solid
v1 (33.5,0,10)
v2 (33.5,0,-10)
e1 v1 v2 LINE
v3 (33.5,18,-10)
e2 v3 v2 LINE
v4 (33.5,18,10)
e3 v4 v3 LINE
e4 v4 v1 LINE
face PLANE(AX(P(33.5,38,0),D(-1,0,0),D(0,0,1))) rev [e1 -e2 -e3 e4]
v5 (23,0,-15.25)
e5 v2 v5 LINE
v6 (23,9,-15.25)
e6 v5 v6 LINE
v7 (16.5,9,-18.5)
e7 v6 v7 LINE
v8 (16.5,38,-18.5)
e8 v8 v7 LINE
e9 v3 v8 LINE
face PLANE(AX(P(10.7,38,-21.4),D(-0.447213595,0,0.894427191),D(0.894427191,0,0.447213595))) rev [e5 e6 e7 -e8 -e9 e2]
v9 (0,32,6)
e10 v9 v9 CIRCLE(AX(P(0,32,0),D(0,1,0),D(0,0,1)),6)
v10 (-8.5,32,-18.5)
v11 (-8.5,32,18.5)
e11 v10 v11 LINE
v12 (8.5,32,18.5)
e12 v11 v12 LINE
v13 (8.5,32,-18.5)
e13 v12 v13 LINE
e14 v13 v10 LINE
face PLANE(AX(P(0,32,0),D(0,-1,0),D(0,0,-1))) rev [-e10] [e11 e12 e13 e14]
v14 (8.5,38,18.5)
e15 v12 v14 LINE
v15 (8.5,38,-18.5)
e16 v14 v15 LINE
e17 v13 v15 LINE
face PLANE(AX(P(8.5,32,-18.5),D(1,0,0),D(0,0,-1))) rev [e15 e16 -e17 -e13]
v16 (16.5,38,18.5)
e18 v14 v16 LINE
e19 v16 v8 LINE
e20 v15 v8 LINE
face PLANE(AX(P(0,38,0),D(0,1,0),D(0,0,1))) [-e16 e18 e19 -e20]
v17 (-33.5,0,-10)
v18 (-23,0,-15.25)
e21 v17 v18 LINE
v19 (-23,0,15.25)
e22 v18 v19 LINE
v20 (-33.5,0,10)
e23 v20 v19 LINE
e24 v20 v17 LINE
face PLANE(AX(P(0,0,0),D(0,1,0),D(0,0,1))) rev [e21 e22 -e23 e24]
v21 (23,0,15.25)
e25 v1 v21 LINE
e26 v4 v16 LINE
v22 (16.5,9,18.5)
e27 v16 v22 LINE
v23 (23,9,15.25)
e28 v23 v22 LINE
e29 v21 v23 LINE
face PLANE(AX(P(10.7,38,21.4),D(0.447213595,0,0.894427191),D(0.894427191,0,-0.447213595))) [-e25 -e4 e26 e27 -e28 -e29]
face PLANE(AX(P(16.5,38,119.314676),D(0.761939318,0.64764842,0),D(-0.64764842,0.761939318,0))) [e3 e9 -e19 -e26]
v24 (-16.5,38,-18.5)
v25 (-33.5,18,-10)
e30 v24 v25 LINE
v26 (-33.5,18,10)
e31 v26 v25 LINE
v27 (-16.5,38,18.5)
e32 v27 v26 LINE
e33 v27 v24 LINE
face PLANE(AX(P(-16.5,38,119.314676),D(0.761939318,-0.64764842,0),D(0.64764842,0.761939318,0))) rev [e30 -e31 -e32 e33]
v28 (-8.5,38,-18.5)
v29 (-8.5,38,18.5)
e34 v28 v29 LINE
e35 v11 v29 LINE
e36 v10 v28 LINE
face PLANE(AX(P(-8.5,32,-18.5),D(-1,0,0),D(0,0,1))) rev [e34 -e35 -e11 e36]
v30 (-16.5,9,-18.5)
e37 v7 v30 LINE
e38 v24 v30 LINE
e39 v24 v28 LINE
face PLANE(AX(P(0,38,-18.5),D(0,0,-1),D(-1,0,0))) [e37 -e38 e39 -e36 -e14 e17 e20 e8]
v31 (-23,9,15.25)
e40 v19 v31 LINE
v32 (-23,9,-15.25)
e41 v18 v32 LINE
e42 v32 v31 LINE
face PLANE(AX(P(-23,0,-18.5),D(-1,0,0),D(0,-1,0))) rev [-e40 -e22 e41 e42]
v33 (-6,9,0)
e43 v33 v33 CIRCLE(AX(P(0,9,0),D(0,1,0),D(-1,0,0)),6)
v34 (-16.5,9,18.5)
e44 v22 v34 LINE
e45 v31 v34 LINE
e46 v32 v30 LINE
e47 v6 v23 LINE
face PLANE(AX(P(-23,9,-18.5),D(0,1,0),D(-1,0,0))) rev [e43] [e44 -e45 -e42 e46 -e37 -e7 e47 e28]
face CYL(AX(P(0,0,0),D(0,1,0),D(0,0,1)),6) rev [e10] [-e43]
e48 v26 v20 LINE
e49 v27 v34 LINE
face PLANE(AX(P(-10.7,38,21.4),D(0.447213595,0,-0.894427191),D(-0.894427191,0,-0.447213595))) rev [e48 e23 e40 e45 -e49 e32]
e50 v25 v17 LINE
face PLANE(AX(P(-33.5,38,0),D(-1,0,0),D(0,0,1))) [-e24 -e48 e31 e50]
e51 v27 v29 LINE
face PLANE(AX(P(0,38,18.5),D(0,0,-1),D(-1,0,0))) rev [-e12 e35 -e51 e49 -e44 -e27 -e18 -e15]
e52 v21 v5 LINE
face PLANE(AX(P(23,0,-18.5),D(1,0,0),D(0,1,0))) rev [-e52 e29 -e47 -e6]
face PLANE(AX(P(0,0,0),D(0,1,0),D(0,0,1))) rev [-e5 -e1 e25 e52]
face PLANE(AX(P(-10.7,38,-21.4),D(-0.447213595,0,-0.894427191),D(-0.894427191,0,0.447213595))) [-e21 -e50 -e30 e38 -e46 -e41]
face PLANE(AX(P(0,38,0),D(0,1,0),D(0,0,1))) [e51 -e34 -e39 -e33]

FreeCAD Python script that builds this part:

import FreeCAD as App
import Part
import Sketcher
Q = App.Units.Quantity

doc = App.newDocument("Part")
params = doc.addObject("Spreadsheet::Sheet", "Params")
for row, (alias, value) in enumerate([
    ("sketch1_width", "33 mm"),
    ("sketch1_height", "20 mm"),
    ("pad1_length", "38 mm"),
    ("pocket1_length", "109.861022 mm"),
    ("sketch3_width", "46 mm"),
    ("sketch3_height", "9 mm"),
    ("sketch4_width", "17 mm"),
    ("sketch4_height", "37 mm"),
    ("pocket3_length", "6 mm"),
    ("sketch5_diameter", "12 mm"),
], start=1):
    params.set(f"A{row}", alias)
    params.set(f"B{row}", "=" + value)
    params.setAlias(f"B{row}", alias)

body = doc.addObject("PartDesign::Body", "Body")

sketch1 = body.newObject("Sketcher::SketchObject", "Sketch")
sketch1.AttachmentSupport = (doc.getObject("XZ_Plane"), [""])
sketch1.MapMode = "FlatFace"
sketch1.addGeometry(Part.LineSegment(App.Vector(-33.5, -10, 0), App.Vector(-33.5, 10, 0)), False)
sketch1.addGeometry(Part.LineSegment(App.Vector(-33.5, 10, 0), App.Vector(-16.5, 18.5, 0)), False)
sketch1.addGeometry(Part.LineSegment(App.Vector(-16.5, 18.5, 0), App.Vector(16.5, 18.5, 0)), False)
sketch1.addGeometry(Part.LineSegment(App.Vector(16.5, 18.5, 0), App.Vector(33.5, 10, 0)), False)
sketch1.addGeometry(Part.LineSegment(App.Vector(33.5, 10, 0), App.Vector(33.5, -10, 0)), False)
sketch1.addGeometry(Part.LineSegment(App.Vector(33.5, -10, 0), App.Vector(16.5, -18.5, 0)), False)
sketch1.addGeometry(Part.LineSegment(App.Vector(16.5, -18.5, 0), App.Vector(-16.5, -18.5, 0)), False)
sketch1.addGeometry(Part.LineSegment(App.Vector(-16.5, -18.5, 0), App.Vector(-33.5, -10, 0)), False)
sketch1.addConstraint(Sketcher.Constraint("Coincident", 0, 2, 1, 1))
sketch1.addConstraint(Sketcher.Constraint("Coincident", 1, 2, 2, 1))
sketch1.addConstraint(Sketcher.Constraint("Coincident", 2, 2, 3, 1))
sketch1.addConstraint(Sketcher.Constraint("Coincident", 3, 2, 4, 1))
sketch1.addConstraint(Sketcher.Constraint("Coincident", 4, 2, 5, 1))
sketch1.addConstraint(Sketcher.Constraint("Coincident", 5, 2, 6, 1))
sketch1.addConstraint(Sketcher.Constraint("Coincident", 6, 2, 7, 1))
sketch1.addConstraint(Sketcher.Constraint("Coincident", 7, 2, 0, 1))
sketch1.addConstraint(Sketcher.Constraint("Vertical", 0))
sketch1.addConstraint(Sketcher.Constraint("Horizontal", 2))
sketch1.addConstraint(Sketcher.Constraint("Vertical", 4))
sketch1.addConstraint(Sketcher.Constraint("Horizontal", 6))
sketch1.addConstraint(Sketcher.Constraint("Symmetric", 0, 2, 4, 2, -1, 1))
sketch1.addConstraint(Sketcher.Constraint("Symmetric", 1, 2, 5, 2, -1, 1))
sketch1.addConstraint(Sketcher.Constraint("Parallel", 3, 7))
sketch1.addConstraint(Sketcher.Constraint("Horizontal", 0, 2, 3, 2))
sketch1.addConstraint(Sketcher.Constraint("Horizontal", 4, 2, 7, 2))
sketch1.addConstraint(Sketcher.Constraint("Vertical", 2, 2, 5, 2))
sketch1.addConstraint(Sketcher.Constraint("DistanceX", 2, 1, 2, 2, Q("33 mm")))
sketch1.addConstraint(Sketcher.Constraint("DistanceY", 0, 1, 0, 2, Q("20 mm")))
sketch1.addConstraint(Sketcher.Constraint("DistanceX", 0, 2, 1, 2, Q("17 mm")))
sketch1.addConstraint(Sketcher.Constraint("DistanceY", 5, 2, 2, 2, Q("37 mm")))
sketch1.setExpression("Constraints[18]", "Params.sketch1_width")
sketch1.setExpression("Constraints[19]", "Params.sketch1_height")
pad1 = body.newObject("PartDesign::Pad", "Pad")
pad1.Profile = sketch1
pad1.setExpression("Length", "Params.pad1_length")
pad1.Reversed = True

sketch2 = body.newObject("Sketcher::SketchObject", "Sketch001")
sketch2.AttachmentSupport = (doc.getObject("XY_Plane"), [""])
sketch2.MapMode = "FlatFace"
sketch2.addGeometry(Part.LineSegment(App.Vector(-80.545433, 152.171097, 0), App.Vector(16.5, 38, 0)), False)
sketch2.addGeometry(Part.LineSegment(App.Vector(16.5, 38, 0), App.Vector(33.5, 18, 0)), False)
sketch2.addGeometry(Part.LineSegment(App.Vector(33.5, 18, 0), App.Vector(130.545433, -96.171097, 0)), False)
sketch2.addGeometry(Part.LineSegment(App.Vector(130.545433, -96.171097, 0), App.Vector(358.887627, 97.919768, 0)), False)
sketch2.addGeometry(Part.LineSegment(App.Vector(358.887627, 97.919768, 0), App.Vector(147.796762, 346.261962, 0)), False)
sketch2.addGeometry(Part.LineSegment(App.Vector(147.796762, 346.261962, 0), App.Vector(-80.545433, 152.171097, 0)), False)
sketch2.addConstraint(Sketcher.Constraint("Coincident", 0, 2, 1, 1))
sketch2.addConstraint(Sketcher.Constraint("Coincident", 1, 2, 2, 1))
sketch2.addConstraint(Sketcher.Constraint("Coincident", 2, 2, 3, 1))
sketch2.addConstraint(Sketcher.Constraint("Coincident", 3, 2, 4, 1))
sketch2.addConstraint(Sketcher.Constraint("Coincident", 4, 2, 5, 1))
sketch2.addConstraint(Sketcher.Constraint("Coincident", 5, 2, 0, 1))
sketch2.addConstraint(Sketcher.Constraint("Parallel", 0, 1))
sketch2.addConstraint(Sketcher.Constraint("Parallel", 1, 2))
sketch2.addConstraint(Sketcher.Constraint("Perpendicular", 2, 3))
sketch2.addConstraint(Sketcher.Constraint("Perpendicular", 3, 4))
sketch2.addConstraint(Sketcher.Constraint("Perpendicular", 4, 5))
sketch2.addConstraint(Sketcher.Constraint("Equal", 0, 2))
sketch2.addConstraint(Sketcher.Constraint("DistanceY", -1, 1, 0, 2, Q("38 mm")))
sketch2.addConstraint(Sketcher.Constraint("DistanceY", -1, 1, 1, 2, Q("18 mm")))
sketch2.addConstraint(Sketcher.Constraint("DistanceX", 0, 2, 1, 2, Q("17 mm")))
sketch2.addConstraint(Sketcher.Constraint("DistanceX", -1, 1, 0, 2, Q("16.5 mm")))
sketch2.addConstraint(Sketcher.Constraint("Distance", 0, Q("149.842769 mm")))
sketch2.addConstraint(Sketcher.Constraint("DistanceX", -1, 1, 4, 2, Q("147.796762 mm")))
pocket1 = body.newObject("PartDesign::Pocket", "Pocket")
pocket1.Profile = sketch2
pocket1.setExpression("Length", "Params.pocket1_length")
pocket1.Midplane = True
doc.recompute()

mirrored = body.newObject("PartDesign::Mirrored", "Mirrored")
mirrored.Originals = [pocket1]
mirrored.MirrorPlane = (doc.getObject("YZ_Plane"), [""])
body.Tip = mirrored

sketch3 = body.newObject("Sketcher::SketchObject", "Sketch002")
sketch3.AttachmentSupport = (doc.getObject("XY_Plane"), [""])
sketch3.MapMode = "FlatFace"
sketch3.addGeometry(Part.LineSegment(App.Vector(-23, 9, 0), App.Vector(-23, 0, 0)), False)
sketch3.addGeometry(Part.LineSegment(App.Vector(-23, 0, 0), App.Vector(23, 0, 0)), False)
sketch3.addGeometry(Part.LineSegment(App.Vector(23, 0, 0), App.Vector(23, 9, 0)), False)
sketch3.addGeometry(Part.LineSegment(App.Vector(23, 9, 0), App.Vector(-23, 9, 0)), False)
sketch3.addConstraint(Sketcher.Constraint("Coincident", 0, 2, 1, 1))
sketch3.addConstraint(Sketcher.Constraint("Coincident", 1, 2, 2, 1))
sketch3.addConstraint(Sketcher.Constraint("Coincident", 2, 2, 3, 1))
sketch3.addConstraint(Sketcher.Constraint("Coincident", 3, 2, 0, 1))
sketch3.addConstraint(Sketcher.Constraint("Vertical", 0))
sketch3.addConstraint(Sketcher.Constraint("Horizontal", 1))
sketch3.addConstraint(Sketcher.Constraint("Vertical", 2))
sketch3.addConstraint(Sketcher.Constraint("Horizontal", 3))
sketch3.addConstraint(Sketcher.Constraint("Symmetric", 0, 2, 1, 2, -1, 1))
sketch3.addConstraint(Sketcher.Constraint("DistanceX", 1, 1, 1, 2, Q("46 mm")))
sketch3.addConstraint(Sketcher.Constraint("DistanceY", 0, 2, 0, 1, Q("9 mm")))
sketch3.setExpression("Constraints[9]", "Params.sketch3_width")
sketch3.setExpression("Constraints[10]", "Params.sketch3_height")
pocket2 = body.newObject("PartDesign::Pocket", "Pocket001")
pocket2.Profile = sketch3
pocket2.Type = "ThroughAll"
pocket2.Midplane = True

sketch4 = body.newObject("Sketcher::SketchObject", "Sketch003")
sketch4.AttachmentSupport = (doc.getObject("XZ_Plane"), [""])
sketch4.MapMode = "FlatFace"
sketch4.AttachmentOffset = App.Placement(App.Vector(0, 0, -38), App.Rotation())
sketch4.addGeometry(Part.LineSegment(App.Vector(-8.5, -18.5, 0), App.Vector(-8.5, 18.5, 0)), False)
sketch4.addGeometry(Part.LineSegment(App.Vector(-8.5, 18.5, 0), App.Vector(8.5, 18.5, 0)), False)
sketch4.addGeometry(Part.LineSegment(App.Vector(8.5, 18.5, 0), App.Vector(8.5, -18.5, 0)), False)
sketch4.addGeometry(Part.LineSegment(App.Vector(8.5, -18.5, 0), App.Vector(-8.5, -18.5, 0)), False)
sketch4.addConstraint(Sketcher.Constraint("Coincident", 0, 2, 1, 1))
sketch4.addConstraint(Sketcher.Constraint("Coincident", 1, 2, 2, 1))
sketch4.addConstraint(Sketcher.Constraint("Coincident", 2, 2, 3, 1))
sketch4.addConstraint(Sketcher.Constraint("Coincident", 3, 2, 0, 1))
sketch4.addConstraint(Sketcher.Constraint("Vertical", 0))
sketch4.addConstraint(Sketcher.Constraint("Horizontal", 1))
sketch4.addConstraint(Sketcher.Constraint("Vertical", 2))
sketch4.addConstraint(Sketcher.Constraint("Horizontal", 3))
sketch4.addConstraint(Sketcher.Constraint("Symmetric", 0, 2, 2, 2, -1, 1))
sketch4.addConstraint(Sketcher.Constraint("DistanceX", 1, 1, 1, 2, Q("17 mm")))
sketch4.addConstraint(Sketcher.Constraint("DistanceY", 0, 1, 0, 2, Q("37 mm")))
sketch4.setExpression("Constraints[9]", "Params.sketch4_width")
sketch4.setExpression("Constraints[10]", "Params.sketch4_height")
pocket3 = body.newObject("PartDesign::Pocket", "Pocket002")
pocket3.Profile = sketch4
pocket3.setExpression("Length", "Params.pocket3_length")
pocket3.Reversed = True

sketch5 = body.newObject("Sketcher::SketchObject", "Sketch004")
sketch5.AttachmentSupport = (doc.getObject("XZ_Plane"), [""])
sketch5.MapMode = "FlatFace"
sketch5.AttachmentOffset = App.Placement(App.Vector(0, 0, -32), App.Rotation())
sketch5.addGeometry(Part.Circle(App.Vector(0, 0, 0), App.Vector(0, 0, 1), 6), False)
sketch5.addConstraint(Sketcher.Constraint("Coincident", 0, 3, -1, 1))
sketch5.addConstraint(Sketcher.Constraint("Diameter", 0, Q("12 mm")))
sketch5.setExpression("Constraints[1]", "Params.sketch5_diameter")
pocket4 = body.newObject("PartDesign::Pocket", "Pocket003")
pocket4.Profile = sketch5
pocket4.Type = "ThroughAll"
pocket4.Reversed = True

doc.recompute()
